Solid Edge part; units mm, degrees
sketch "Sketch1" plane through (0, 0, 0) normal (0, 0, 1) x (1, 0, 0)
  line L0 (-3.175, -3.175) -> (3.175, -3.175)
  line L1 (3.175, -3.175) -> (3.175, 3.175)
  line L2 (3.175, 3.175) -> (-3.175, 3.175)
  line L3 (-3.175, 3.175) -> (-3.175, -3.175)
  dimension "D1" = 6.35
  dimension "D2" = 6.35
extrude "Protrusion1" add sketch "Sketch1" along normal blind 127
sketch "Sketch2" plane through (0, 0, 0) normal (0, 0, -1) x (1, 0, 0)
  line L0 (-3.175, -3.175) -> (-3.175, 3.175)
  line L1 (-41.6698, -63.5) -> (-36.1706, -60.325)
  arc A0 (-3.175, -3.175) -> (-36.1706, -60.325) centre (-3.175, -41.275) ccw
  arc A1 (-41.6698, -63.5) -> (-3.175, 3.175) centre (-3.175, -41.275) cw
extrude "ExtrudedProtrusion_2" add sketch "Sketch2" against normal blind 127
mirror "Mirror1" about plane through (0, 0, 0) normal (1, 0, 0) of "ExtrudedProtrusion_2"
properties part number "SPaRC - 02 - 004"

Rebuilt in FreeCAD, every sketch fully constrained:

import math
import FreeCAD as App
import Part
import Sketcher

V = App.Vector
Q = App.Units.Quantity

doc = App.newDocument("Part")
body = doc.addObject("PartDesign::Body", "Body")

# Sketch on XY plane
sketch1 = body.newObject("Sketcher::SketchObject", "Sketch")
sketch1.AttachmentSupport = (doc.getObject("XY_Plane"), [""])
sketch1.MapMode = "FlatFace"
sketch1.addGeometry(Part.LineSegment(V(-3, 3, 0), V(-3, -3, 0)), False)
sketch1.addGeometry(Part.LineSegment(V(-3, -3, 0), V(3, -3, 0)), False)
sketch1.addGeometry(Part.LineSegment(V(3, -3, 0), V(3, 3, 0)), False)
sketch1.addGeometry(Part.LineSegment(V(3, 3, 0), V(-3, 3, 0)), False)
sketch1.addConstraint(Sketcher.Constraint("Coincident", 0, 2, 1, 1))
sketch1.addConstraint(Sketcher.Constraint("Coincident", 1, 2, 2, 1))
sketch1.addConstraint(Sketcher.Constraint("Coincident", 2, 2, 3, 1))
sketch1.addConstraint(Sketcher.Constraint("Coincident", 3, 2, 0, 1))
sketch1.addConstraint(Sketcher.Constraint("Vertical", 0))
sketch1.addConstraint(Sketcher.Constraint("Horizontal", 1))
sketch1.addConstraint(Sketcher.Constraint("Vertical", 2))
sketch1.addConstraint(Sketcher.Constraint("Horizontal", 3))
sketch1.addConstraint(Sketcher.Constraint("Symmetric", 0, 2, 2, 2, -1, 1))
sketch1.addConstraint(Sketcher.Constraint("Equal", 3, 0))
sketch1.addConstraint(Sketcher.Constraint("DistanceX", 0, 2, -1, 1, Q("0.125 in")))
pad1 = body.newObject("PartDesign::Pad", "Pad")
pad1.Profile = sketch1
pad1.Length = Q("5 in")

# Sketch on XY plane
sketch2 = body.newObject("Sketcher::SketchObject", "Sketch001")
sketch2.AttachmentSupport = (doc.getObject("XY_Plane"), [""])
sketch2.MapMode = "FlatFace"
sketch2.addGeometry(Part.ArcOfCircle(Part.Circle(V(-3, 41, 0), V(0, 0, 1), 38), math.radians(150), math.radians(270)), False)
sketch2.addGeometry(Part.LineSegment(V(-3, 3, 0), V(-3, -3, 0)), False)
sketch2.addGeometry(Part.ArcOfCircle(Part.Circle(V(-3, 41, 0), V(0, 0, 1), 44), math.radians(150), math.radians(270)), False)
sketch2.addGeometry(Part.LineSegment(V(-42, 64, 0), V(-36, 60, 0)), False)
sketch2.addConstraint(Sketcher.Constraint("Coincident", 0, 2, 1, 1))
sketch2.addConstraint(Sketcher.Constraint("Coincident", 1, 2, 2, 2))
sketch2.addConstraint(Sketcher.Constraint("Coincident", 2, 1, 3, 1))
sketch2.addConstraint(Sketcher.Constraint("Coincident", 3, 2, 0, 1))
sketch2.addConstraint(Sketcher.Constraint("Vertical", 1))
sketch2.addConstraint(Sketcher.Constraint("Coincident", 2, 3, 0, 3))
sketch2.addConstraint(Sketcher.Constraint("Vertical", 2, 3, 0, 2))
sketch2.addConstraint(Sketcher.Constraint("Radius", 0, Q("1.5 in")))
sketch2.addConstraint(Sketcher.Constraint("Radius", 2, Q("1.75 in")))
sketch2.addConstraint(Sketcher.Constraint("Angle", 3, Q("-30.0003 deg")))
sketch2.addConstraint(Sketcher.Constraint("DistanceY", -1, 1, 2, 1, Q("2.5 in")))
sketch2.addConstraint(Sketcher.Constraint("DistanceY", 1, 2, 3, 2, Q("2.5 in")))
sketch2.addConstraint(Sketcher.Constraint("DistanceX", 0, 3, -1, 1, Q("0.125 in")))
pad2 = body.newObject("PartDesign::Pad", "Pad001")
pad2.Profile = sketch2
pad2.Length = Q("5 in")
doc.recompute()

mirrored = body.newObject("PartDesign::Mirrored", "Mirrored")
mirrored.Originals = [pad2]
mirrored.MirrorPlane = (doc.getObject("YZ_Plane"), [""])
body.Tip = mirrored

doc.recompute()
